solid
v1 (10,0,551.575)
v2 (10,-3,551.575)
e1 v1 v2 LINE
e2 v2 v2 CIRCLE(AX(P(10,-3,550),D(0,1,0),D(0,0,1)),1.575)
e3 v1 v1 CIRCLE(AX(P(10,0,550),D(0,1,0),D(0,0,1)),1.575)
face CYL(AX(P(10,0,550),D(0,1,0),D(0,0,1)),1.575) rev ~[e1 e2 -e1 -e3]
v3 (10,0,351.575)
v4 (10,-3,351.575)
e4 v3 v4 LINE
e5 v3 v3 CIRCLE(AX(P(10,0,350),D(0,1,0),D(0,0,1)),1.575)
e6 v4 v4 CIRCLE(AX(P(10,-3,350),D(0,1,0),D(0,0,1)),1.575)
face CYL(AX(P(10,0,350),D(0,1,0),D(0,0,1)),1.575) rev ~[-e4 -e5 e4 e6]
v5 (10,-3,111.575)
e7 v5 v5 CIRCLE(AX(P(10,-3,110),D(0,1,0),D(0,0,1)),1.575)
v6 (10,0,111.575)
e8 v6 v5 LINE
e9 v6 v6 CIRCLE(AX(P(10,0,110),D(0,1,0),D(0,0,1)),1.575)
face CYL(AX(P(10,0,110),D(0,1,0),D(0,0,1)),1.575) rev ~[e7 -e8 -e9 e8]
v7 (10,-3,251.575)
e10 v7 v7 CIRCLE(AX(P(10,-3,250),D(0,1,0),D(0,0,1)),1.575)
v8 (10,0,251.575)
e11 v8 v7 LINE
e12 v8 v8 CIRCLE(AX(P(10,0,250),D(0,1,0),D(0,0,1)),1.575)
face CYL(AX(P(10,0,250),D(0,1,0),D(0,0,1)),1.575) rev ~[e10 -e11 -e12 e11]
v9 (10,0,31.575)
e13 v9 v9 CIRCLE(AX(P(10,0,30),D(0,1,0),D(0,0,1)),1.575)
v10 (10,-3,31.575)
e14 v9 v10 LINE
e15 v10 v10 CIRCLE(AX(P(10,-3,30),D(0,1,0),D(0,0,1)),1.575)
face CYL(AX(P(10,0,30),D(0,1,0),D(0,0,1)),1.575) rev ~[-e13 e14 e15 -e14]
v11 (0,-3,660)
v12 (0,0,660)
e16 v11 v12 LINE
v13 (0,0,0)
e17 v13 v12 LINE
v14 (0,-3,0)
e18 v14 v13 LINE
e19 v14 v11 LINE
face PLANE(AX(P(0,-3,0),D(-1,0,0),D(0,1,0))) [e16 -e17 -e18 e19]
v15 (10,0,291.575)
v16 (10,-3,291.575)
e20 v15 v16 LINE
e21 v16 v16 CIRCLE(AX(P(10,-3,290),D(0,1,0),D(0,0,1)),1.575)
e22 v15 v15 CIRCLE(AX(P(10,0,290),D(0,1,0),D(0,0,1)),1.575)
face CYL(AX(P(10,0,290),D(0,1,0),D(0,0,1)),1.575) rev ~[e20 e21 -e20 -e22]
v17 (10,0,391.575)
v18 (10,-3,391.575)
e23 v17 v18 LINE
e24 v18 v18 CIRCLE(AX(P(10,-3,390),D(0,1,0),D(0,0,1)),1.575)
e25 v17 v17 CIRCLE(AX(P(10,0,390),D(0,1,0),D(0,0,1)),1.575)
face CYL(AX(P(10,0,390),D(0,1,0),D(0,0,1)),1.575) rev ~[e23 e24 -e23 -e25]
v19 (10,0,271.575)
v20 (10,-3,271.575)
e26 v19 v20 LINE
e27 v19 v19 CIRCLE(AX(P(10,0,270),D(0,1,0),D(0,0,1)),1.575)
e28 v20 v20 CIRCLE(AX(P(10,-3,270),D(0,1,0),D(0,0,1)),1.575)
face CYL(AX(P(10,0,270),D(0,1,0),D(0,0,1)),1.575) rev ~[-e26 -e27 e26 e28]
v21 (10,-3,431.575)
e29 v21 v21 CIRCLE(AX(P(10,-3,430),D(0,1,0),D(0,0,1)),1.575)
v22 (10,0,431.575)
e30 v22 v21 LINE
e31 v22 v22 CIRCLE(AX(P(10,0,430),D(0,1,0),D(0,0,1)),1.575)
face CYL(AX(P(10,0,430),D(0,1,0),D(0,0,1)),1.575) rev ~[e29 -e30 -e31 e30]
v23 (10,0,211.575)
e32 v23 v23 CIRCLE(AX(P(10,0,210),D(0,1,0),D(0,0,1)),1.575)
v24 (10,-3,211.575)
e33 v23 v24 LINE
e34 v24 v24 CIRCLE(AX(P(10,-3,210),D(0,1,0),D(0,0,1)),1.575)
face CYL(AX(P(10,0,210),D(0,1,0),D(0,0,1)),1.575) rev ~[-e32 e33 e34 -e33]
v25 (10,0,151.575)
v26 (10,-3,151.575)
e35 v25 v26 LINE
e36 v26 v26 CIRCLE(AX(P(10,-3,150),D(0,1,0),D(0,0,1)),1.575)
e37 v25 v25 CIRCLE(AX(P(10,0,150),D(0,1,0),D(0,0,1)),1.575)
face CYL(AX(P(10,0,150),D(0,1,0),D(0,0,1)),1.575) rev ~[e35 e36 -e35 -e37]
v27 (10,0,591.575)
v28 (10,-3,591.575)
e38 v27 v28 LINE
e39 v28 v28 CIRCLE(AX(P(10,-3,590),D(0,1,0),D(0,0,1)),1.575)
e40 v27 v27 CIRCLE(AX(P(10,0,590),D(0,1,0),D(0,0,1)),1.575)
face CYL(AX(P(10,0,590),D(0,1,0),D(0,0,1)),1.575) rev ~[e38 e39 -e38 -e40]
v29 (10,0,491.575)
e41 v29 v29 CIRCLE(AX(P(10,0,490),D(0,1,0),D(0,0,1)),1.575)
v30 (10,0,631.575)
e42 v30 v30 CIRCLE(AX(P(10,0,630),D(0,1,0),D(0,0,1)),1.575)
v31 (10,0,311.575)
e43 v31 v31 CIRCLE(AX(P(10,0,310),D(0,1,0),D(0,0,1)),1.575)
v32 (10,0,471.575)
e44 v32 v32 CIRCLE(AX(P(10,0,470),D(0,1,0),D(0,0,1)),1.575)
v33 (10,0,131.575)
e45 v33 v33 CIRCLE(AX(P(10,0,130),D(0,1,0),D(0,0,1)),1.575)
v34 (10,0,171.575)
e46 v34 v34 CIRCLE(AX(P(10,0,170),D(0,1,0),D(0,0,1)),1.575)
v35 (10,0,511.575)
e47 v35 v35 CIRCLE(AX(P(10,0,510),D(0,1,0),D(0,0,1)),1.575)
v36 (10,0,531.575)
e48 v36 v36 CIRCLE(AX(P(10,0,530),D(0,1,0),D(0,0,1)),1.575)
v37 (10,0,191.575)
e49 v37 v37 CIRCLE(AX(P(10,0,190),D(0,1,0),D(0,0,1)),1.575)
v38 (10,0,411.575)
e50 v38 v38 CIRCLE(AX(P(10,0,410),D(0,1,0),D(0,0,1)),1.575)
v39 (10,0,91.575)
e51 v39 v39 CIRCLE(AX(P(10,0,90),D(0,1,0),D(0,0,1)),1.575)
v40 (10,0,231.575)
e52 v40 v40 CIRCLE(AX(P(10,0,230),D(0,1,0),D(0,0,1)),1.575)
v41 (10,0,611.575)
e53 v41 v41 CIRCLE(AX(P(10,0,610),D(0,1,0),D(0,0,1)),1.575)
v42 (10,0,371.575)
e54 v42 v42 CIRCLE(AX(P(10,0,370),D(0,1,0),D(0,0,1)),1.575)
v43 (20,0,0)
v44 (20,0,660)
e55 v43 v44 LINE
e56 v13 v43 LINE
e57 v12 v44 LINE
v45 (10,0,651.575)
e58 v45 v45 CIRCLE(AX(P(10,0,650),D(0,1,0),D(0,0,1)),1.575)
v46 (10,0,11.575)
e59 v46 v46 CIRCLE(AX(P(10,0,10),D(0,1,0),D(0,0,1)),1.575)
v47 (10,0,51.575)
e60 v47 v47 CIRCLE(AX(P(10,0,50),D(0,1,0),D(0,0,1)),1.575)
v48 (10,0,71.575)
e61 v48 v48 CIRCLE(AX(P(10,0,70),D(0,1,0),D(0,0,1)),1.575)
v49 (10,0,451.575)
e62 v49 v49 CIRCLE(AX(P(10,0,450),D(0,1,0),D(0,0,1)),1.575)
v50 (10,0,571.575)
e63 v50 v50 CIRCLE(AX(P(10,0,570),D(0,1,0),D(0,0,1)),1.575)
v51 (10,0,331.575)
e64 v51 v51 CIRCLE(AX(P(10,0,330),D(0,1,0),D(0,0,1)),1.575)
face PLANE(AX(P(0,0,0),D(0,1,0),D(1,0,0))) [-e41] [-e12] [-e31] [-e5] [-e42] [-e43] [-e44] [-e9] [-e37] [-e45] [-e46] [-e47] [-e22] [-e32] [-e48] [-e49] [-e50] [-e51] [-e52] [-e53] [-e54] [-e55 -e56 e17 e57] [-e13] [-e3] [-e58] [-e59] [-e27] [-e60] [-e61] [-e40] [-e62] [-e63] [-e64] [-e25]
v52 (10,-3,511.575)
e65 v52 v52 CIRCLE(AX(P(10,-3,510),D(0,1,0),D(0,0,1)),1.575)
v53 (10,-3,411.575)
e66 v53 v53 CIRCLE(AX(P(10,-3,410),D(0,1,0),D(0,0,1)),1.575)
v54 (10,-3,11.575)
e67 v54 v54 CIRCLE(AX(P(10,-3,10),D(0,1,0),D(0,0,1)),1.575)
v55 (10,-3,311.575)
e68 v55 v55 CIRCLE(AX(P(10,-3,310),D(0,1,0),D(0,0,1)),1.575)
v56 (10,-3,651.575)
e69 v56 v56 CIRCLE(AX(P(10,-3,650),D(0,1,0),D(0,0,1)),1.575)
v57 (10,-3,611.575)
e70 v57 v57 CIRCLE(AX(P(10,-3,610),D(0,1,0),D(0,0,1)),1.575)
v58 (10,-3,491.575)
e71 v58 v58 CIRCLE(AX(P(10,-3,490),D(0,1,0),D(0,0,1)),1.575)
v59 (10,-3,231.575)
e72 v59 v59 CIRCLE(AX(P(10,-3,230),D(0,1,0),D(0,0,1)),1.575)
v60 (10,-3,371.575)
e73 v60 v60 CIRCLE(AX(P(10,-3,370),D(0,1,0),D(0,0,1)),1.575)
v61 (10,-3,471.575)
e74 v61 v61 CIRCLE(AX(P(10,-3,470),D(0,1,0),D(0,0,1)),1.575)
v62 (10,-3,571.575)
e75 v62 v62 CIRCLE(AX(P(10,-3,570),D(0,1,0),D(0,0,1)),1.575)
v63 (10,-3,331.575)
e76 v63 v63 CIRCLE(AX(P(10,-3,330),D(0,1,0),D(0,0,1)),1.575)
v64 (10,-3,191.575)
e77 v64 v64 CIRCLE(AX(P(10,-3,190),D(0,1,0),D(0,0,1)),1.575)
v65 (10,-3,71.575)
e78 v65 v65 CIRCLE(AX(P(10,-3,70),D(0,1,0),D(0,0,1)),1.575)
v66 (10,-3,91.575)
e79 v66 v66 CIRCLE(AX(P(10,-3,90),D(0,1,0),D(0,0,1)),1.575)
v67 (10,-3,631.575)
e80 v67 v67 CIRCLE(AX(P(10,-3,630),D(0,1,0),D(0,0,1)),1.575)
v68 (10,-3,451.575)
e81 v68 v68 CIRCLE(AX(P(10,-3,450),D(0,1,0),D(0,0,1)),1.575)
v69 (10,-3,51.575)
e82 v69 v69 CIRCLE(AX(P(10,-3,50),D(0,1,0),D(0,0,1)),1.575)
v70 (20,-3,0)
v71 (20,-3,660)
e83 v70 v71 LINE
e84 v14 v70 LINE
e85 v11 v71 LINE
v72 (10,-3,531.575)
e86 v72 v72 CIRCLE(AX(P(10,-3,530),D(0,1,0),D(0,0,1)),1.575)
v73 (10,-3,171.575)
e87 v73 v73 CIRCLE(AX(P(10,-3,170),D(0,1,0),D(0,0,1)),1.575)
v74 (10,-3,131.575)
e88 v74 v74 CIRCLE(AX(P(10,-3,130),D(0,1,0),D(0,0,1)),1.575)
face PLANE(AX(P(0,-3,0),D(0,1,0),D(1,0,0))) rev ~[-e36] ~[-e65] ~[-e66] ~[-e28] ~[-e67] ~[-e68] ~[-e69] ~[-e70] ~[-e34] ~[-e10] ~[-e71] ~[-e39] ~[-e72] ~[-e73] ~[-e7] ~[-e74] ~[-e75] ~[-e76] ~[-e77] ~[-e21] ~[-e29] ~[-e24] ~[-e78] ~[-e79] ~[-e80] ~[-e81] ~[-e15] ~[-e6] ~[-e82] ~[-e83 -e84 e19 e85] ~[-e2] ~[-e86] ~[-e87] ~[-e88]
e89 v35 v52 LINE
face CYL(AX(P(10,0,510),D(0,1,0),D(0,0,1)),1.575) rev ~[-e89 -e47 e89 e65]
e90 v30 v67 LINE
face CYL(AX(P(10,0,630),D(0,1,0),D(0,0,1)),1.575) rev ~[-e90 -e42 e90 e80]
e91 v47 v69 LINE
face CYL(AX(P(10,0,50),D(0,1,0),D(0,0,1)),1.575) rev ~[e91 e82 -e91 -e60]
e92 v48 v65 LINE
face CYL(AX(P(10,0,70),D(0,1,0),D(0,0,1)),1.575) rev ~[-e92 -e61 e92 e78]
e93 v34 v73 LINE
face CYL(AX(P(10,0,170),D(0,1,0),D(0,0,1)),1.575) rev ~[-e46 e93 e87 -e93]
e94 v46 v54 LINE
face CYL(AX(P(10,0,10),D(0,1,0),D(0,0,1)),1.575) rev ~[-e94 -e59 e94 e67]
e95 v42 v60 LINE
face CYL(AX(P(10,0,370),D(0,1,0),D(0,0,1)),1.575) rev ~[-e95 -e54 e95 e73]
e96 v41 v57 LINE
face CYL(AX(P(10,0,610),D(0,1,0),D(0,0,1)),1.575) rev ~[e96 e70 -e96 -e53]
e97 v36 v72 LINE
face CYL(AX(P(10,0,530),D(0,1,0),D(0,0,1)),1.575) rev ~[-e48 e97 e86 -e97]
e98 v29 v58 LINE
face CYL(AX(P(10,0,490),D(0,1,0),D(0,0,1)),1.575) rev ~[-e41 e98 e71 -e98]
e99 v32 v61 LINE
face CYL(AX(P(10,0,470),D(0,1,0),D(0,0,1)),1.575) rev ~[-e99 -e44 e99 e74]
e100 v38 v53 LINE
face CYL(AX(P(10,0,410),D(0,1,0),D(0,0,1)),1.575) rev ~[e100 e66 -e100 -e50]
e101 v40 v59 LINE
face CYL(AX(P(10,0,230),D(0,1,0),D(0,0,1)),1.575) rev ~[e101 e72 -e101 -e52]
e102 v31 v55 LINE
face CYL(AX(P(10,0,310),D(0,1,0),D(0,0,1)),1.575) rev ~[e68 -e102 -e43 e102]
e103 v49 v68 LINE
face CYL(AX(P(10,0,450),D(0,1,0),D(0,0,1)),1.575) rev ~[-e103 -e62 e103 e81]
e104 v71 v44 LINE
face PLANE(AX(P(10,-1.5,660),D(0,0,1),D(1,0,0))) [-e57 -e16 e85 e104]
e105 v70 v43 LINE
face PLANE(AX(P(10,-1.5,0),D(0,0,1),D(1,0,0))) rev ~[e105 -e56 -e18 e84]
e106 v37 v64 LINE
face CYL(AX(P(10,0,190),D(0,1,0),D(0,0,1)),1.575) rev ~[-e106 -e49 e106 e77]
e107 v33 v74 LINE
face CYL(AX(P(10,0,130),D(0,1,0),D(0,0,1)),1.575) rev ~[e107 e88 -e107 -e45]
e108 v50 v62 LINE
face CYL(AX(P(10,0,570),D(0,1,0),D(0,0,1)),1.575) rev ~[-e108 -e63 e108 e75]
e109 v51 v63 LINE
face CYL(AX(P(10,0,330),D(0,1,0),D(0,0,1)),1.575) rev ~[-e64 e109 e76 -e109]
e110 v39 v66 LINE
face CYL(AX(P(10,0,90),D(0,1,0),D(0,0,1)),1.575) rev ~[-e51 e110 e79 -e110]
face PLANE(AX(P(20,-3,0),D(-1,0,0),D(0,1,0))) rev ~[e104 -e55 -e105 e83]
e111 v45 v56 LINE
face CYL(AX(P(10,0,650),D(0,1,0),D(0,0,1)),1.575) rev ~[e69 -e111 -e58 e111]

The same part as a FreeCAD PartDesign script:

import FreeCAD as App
import Part
import Sketcher
Q = App.Units.Quantity


def add_polygon(sketch, points):
    """Adds a closed chain of lines whose ends are joined by coincident constraints."""
    first, n = sketch.GeometryCount, len(points)
    for a, b in zip(points, points[1:] + points[:1]):
        sketch.addGeometry(Part.LineSegment(App.Vector(*a, 0), App.Vector(*b, 0)), False)
    for i in range(n):
        sketch.addConstraint(Sketcher.Constraint("Coincident", first + i, 2, first + (i + 1) % n, 1))

doc = App.newDocument("Part")
params = doc.addObject("Spreadsheet::Sheet", "Params")
for row, (alias, value) in enumerate([
    ("sketch1_width", "20 mm"),
    ("sketch1_height", "3 mm"),
    ("pad1_length", "660 mm"),
    ("sketch2_diameter", "3.15 mm"),
], start=1):
    params.set(f"A{row}", alias)
    params.set(f"B{row}", "=" + value)
    params.setAlias(f"B{row}", alias)

body = doc.addObject("PartDesign::Body", "Body")

# Sketch on XY plane
sketch1 = body.newObject("Sketcher::SketchObject", "Sketch")
sketch1.AttachmentSupport = (doc.getObject("XY_Plane"), [""])
sketch1.MapMode = "FlatFace"
add_polygon(sketch1, [(0, 0), (0, -3), (20, -3), (20, 0)])  # lines 0-3
sketch1.addConstraint([
    Sketcher.Constraint("Vertical", 0),
    Sketcher.Constraint("Horizontal", 1),
    Sketcher.Constraint("Vertical", 2),
    Sketcher.Constraint("Horizontal", 3),
    Sketcher.Constraint("Coincident", 3, 2, -1, 1),
    Sketcher.Constraint("DistanceX", 1, 1, 1, 2, Q("20 mm")),
    Sketcher.Constraint("DistanceY", 0, 2, 0, 1, Q("3 mm")),
])
sketch1.setExpression("Constraints[9]", "Params.sketch1_width")
sketch1.setExpression("Constraints[10]", "Params.sketch1_height")
pad1 = body.newObject("PartDesign::Pad", "Pad")
pad1.Profile = sketch1
pad1.setExpression("Length", "Params.pad1_length")

# Sketch on XZ plane
sketch2 = body.newObject("Sketcher::SketchObject", "Sketch001")
sketch2.AttachmentSupport = (doc.getObject("XZ_Plane"), [""])
sketch2.MapMode = "FlatFace"
sketch2.addGeometry([
    Part.Circle(App.Vector(10, 10, 0), App.Vector(0, 0, 1), 1.575),  # 0
    Part.Circle(App.Vector(10, 30, 0), App.Vector(0, 0, 1), 1.575),  # 1
    Part.Circle(App.Vector(10, 50, 0), App.Vector(0, 0, 1), 1.575),  # 2
    Part.Circle(App.Vector(10, 70, 0), App.Vector(0, 0, 1), 1.575),  # 3
    Part.Circle(App.Vector(10, 90, 0), App.Vector(0, 0, 1), 1.575),  # 4
    Part.Circle(App.Vector(10, 110, 0), App.Vector(0, 0, 1), 1.575),  # 5
    Part.Circle(App.Vector(10, 130, 0), App.Vector(0, 0, 1), 1.575),  # 6
    Part.Circle(App.Vector(10, 150, 0), App.Vector(0, 0, 1), 1.575),  # 7
    Part.Circle(App.Vector(10, 170, 0), App.Vector(0, 0, 1), 1.575),  # 8
    Part.Circle(App.Vector(10, 190, 0), App.Vector(0, 0, 1), 1.575),  # 9
    Part.Circle(App.Vector(10, 210, 0), App.Vector(0, 0, 1), 1.575),  # 10
    Part.Circle(App.Vector(10, 230, 0), App.Vector(0, 0, 1), 1.575),  # 11
    Part.Circle(App.Vector(10, 250, 0), App.Vector(0, 0, 1), 1.575),  # 12
    Part.Circle(App.Vector(10, 270, 0), App.Vector(0, 0, 1), 1.575),  # 13
    Part.Circle(App.Vector(10, 290, 0), App.Vector(0, 0, 1), 1.575),  # 14
    Part.Circle(App.Vector(10, 310, 0), App.Vector(0, 0, 1), 1.575),  # 15
    Part.Circle(App.Vector(10, 330, 0), App.Vector(0, 0, 1), 1.575),  # 16
    Part.Circle(App.Vector(10, 350, 0), App.Vector(0, 0, 1), 1.575),  # 17
    Part.Circle(App.Vector(10, 370, 0), App.Vector(0, 0, 1), 1.575),  # 18
    Part.Circle(App.Vector(10, 390, 0), App.Vector(0, 0, 1), 1.575),  # 19
    Part.Circle(App.Vector(10, 410, 0), App.Vector(0, 0, 1), 1.575),  # 20
    Part.Circle(App.Vector(10, 430, 0), App.Vector(0, 0, 1), 1.575),  # 21
    Part.Circle(App.Vector(10, 450, 0), App.Vector(0, 0, 1), 1.575),  # 22
    Part.Circle(App.Vector(10, 470, 0), App.Vector(0, 0, 1), 1.575),  # 23
    Part.Circle(App.Vector(10, 490, 0), App.Vector(0, 0, 1), 1.575),  # 24
    Part.Circle(App.Vector(10, 510, 0), App.Vector(0, 0, 1), 1.575),  # 25
    Part.Circle(App.Vector(10, 530, 0), App.Vector(0, 0, 1), 1.575),  # 26
    Part.Circle(App.Vector(10, 550, 0), App.Vector(0, 0, 1), 1.575),  # 27
    Part.Circle(App.Vector(10, 570, 0), App.Vector(0, 0, 1), 1.575),  # 28
    Part.Circle(App.Vector(10, 590, 0), App.Vector(0, 0, 1), 1.575),  # 29
    Part.Circle(App.Vector(10, 610, 0), App.Vector(0, 0, 1), 1.575),  # 30
    Part.Circle(App.Vector(10, 630, 0), App.Vector(0, 0, 1), 1.575),  # 31
    Part.Circle(App.Vector(10, 650, 0), App.Vector(0, 0, 1), 1.575),  # 32
], False)
sketch2.addConstraint([
    Sketcher.Constraint("Equal", 0, 1),
    Sketcher.Constraint("Equal", 1, 2),
    Sketcher.Constraint("Equal", 2, 3),
    Sketcher.Constraint("Equal", 3, 4),
    Sketcher.Constraint("Equal", 4, 5),
    Sketcher.Constraint("Equal", 5, 6),
    Sketcher.Constraint("Equal", 6, 7),
    Sketcher.Constraint("Equal", 7, 8),
    Sketcher.Constraint("Equal", 8, 9),
    Sketcher.Constraint("Equal", 9, 10),
    Sketcher.Constraint("Equal", 10, 11),
    Sketcher.Constraint("Equal", 11, 12),
    Sketcher.Constraint("Equal", 12, 13),
    Sketcher.Constraint("Equal", 13, 14),
    Sketcher.Constraint("Equal", 14, 15),
    Sketcher.Constraint("Equal", 15, 16),
    Sketcher.Constraint("Equal", 16, 17),
    Sketcher.Constraint("Equal", 17, 18),
    Sketcher.Constraint("Equal", 18, 19),
    Sketcher.Constraint("Equal", 19, 20),
    Sketcher.Constraint("Equal", 20, 21),
    Sketcher.Constraint("Equal", 21, 22),
    Sketcher.Constraint("Equal", 22, 23),
    Sketcher.Constraint("Equal", 23, 24),
    Sketcher.Constraint("Equal", 24, 25),
    Sketcher.Constraint("Equal", 25, 26),
    Sketcher.Constraint("Equal", 26, 27),
    Sketcher.Constraint("Equal", 27, 28),
    Sketcher.Constraint("Equal", 28, 29),
    Sketcher.Constraint("Equal", 29, 30),
    Sketcher.Constraint("Equal", 30, 31),
    Sketcher.Constraint("Equal", 31, 32),
    Sketcher.Constraint("Vertical", 0, 3, 1, 3),
    Sketcher.Constraint("Vertical", 1, 3, 2, 3),
    Sketcher.Constraint("Vertical", 2, 3, 3, 3),
    Sketcher.Constraint("Vertical", 3, 3, 4, 3),
    Sketcher.Constraint("Vertical", 4, 3, 5, 3),
    Sketcher.Constraint("Vertical", 5, 3, 6, 3),
    Sketcher.Constraint("Vertical", 6, 3, 7, 3),
    Sketcher.Constraint("Vertical", 7, 3, 8, 3),
    Sketcher.Constraint("Vertical", 8, 3, 9, 3),
    Sketcher.Constraint("Vertical", 9, 3, 10, 3),
    Sketcher.Constraint("Vertical", 10, 3, 11, 3),
    Sketcher.Constraint("Vertical", 11, 3, 12, 3),
    Sketcher.Constraint("Vertical", 12, 3, 13, 3),
    Sketcher.Constraint("Vertical", 13, 3, 14, 3),
    Sketcher.Constraint("Vertical", 14, 3, 15, 3),
    Sketcher.Constraint("Vertical", 15, 3, 16, 3),
    Sketcher.Constraint("Vertical", 16, 3, 17, 3),
    Sketcher.Constraint("Vertical", 17, 3, 18, 3),
    Sketcher.Constraint("Vertical", 18, 3, 19, 3),
    Sketcher.Constraint("Vertical", 19, 3, 20, 3),
    Sketcher.Constraint("Vertical", 20, 3, 21, 3),
    Sketcher.Constraint("Vertical", 21, 3, 22, 3),
    Sketcher.Constraint("Vertical", 22, 3, 23, 3),
    Sketcher.Constraint("Vertical", 23, 3, 24, 3),
    Sketcher.Constraint("Vertical", 24, 3, 25, 3),
    Sketcher.Constraint("Vertical", 25, 3, 26, 3),
    Sketcher.Constraint("Vertical", 26, 3, 27, 3),
    Sketcher.Constraint("Vertical", 27, 3, 28, 3),
    Sketcher.Constraint("Vertical", 28, 3, 29, 3),
    Sketcher.Constraint("Vertical", 29, 3, 30, 3),
    Sketcher.Constraint("Vertical", 30, 3, 31, 3),
    Sketcher.Constraint("Vertical", 31, 3, 32, 3),
    Sketcher.Constraint("Diameter", 0, Q("3.15 mm")),
    Sketcher.Constraint("DistanceX", -1, 1, 0, 3, Q("10 mm")),
    Sketcher.Constraint("DistanceY", -1, 1, 0, 3, Q("10 mm")),
    Sketcher.Constraint("DistanceY", -1, 1, 1, 3, Q("30 mm")),
    Sketcher.Constraint("DistanceY", -1, 1, 2, 3, Q("50 mm")),
    Sketcher.Constraint("DistanceY", -1, 1, 3, 3, Q("70 mm")),
    Sketcher.Constraint("DistanceY", -1, 1, 4, 3, Q("90 mm")),
    Sketcher.Constraint("DistanceY", -1, 1, 5, 3, Q("110 mm")),
    Sketcher.Constraint("DistanceY", -1, 1, 6, 3, Q("130 mm")),
    Sketcher.Constraint("DistanceY", -1, 1, 7, 3, Q("150 mm")),
    Sketcher.Constraint("DistanceY", -1, 1, 8, 3, Q("170 mm")),
    Sketcher.Constraint("DistanceY", -1, 1, 9, 3, Q("190 mm")),
    Sketcher.Constraint("DistanceY", -1, 1, 10, 3, Q("210 mm")),
    Sketcher.Constraint("DistanceY", -1, 1, 11, 3, Q("230 mm")),
    Sketcher.Constraint("DistanceY", -1, 1, 12, 3, Q("250 mm")),
    Sketcher.Constraint("DistanceY", -1, 1, 13, 3, Q("270 mm")),
    Sketcher.Constraint("DistanceY", -1, 1, 14, 3, Q("290 mm")),
    Sketcher.Constraint("DistanceY", -1, 1, 15, 3, Q("310 mm")),
    Sketcher.Constraint("DistanceY", -1, 1, 16, 3, Q("330 mm")),
    Sketcher.Constraint("DistanceY", -1, 1, 17, 3, Q("350 mm")),
    Sketcher.Constraint("DistanceY", -1, 1, 18, 3, Q("370 mm")),
    Sketcher.Constraint("DistanceY", -1, 1, 19, 3, Q("390 mm")),
    Sketcher.Constraint("DistanceY", -1, 1, 20, 3, Q("410 mm")),
    Sketcher.Constraint("DistanceY", -1, 1, 21, 3, Q("430 mm")),
    Sketcher.Constraint("DistanceY", -1, 1, 22, 3, Q("450 mm")),
    Sketcher.Constraint("DistanceY", -1, 1, 23, 3, Q("470 mm")),
    Sketcher.Constraint("DistanceY", -1, 1, 24, 3, Q("490 mm")),
    Sketcher.Constraint("DistanceY", -1, 1, 25, 3, Q("510 mm")),
    Sketcher.Constraint("DistanceY", -1, 1, 26, 3, Q("530 mm")),
    Sketcher.Constraint("DistanceY", -1, 1, 27, 3, Q("550 mm")),
    Sketcher.Constraint("DistanceY", -1, 1, 28, 3, Q("570 mm")),
    Sketcher.Constraint("DistanceY", -1, 1, 29, 3, Q("590 mm")),
    Sketcher.Constraint("DistanceY", -1, 1, 30, 3, Q("610 mm")),
    Sketcher.Constraint("DistanceY", -1, 1, 31, 3, Q("630 mm")),
    Sketcher.Constraint("DistanceY", -1, 1, 32, 3, Q("650 mm")),
])
sketch2.setExpression("Constraints[64]", "Params.sketch2_diameter")
pocket1 = body.newObject("PartDesign::Pocket", "Pocket")
pocket1.Profile = sketch2
pocket1.Type = "ThroughAll"
pocket1.Reversed = True

doc.recompute()
